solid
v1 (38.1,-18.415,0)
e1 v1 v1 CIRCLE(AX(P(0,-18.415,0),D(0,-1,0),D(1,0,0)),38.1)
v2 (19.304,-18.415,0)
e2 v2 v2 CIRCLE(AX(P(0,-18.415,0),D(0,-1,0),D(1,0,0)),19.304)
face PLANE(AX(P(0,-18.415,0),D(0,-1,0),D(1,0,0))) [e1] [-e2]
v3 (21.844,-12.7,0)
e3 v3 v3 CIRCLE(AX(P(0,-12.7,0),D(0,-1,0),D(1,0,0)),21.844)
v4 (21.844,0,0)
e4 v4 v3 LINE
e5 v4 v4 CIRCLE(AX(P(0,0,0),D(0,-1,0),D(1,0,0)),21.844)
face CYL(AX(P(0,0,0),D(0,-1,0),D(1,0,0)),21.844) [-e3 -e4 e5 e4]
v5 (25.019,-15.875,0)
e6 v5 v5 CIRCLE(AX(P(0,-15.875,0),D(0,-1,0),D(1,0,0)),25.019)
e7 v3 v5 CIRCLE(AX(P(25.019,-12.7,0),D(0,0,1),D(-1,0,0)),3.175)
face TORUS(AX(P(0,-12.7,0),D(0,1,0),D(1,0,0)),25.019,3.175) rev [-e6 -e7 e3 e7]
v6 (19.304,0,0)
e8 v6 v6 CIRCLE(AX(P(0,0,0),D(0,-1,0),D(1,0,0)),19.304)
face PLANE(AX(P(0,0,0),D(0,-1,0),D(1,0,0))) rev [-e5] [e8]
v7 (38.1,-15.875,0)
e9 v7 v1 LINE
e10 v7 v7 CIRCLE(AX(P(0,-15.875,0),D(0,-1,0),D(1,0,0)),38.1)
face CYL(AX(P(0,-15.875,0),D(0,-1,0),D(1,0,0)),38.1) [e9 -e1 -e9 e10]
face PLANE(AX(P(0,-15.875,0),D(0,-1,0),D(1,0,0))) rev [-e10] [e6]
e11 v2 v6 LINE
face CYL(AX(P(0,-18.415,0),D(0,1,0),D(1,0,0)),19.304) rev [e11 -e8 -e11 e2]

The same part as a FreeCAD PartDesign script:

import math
import FreeCAD as App
import Part
import Sketcher
Q = App.Units.Quantity

doc = App.newDocument("Part")
body = doc.addObject("PartDesign::Body", "Body")

sketch1 = body.newObject("Sketcher::SketchObject", "Sketch")
sketch1.AttachmentSupport = (doc.getObject("XY_Plane"), [""])
sketch1.MapMode = "FlatFace"
sketch1.addGeometry([
    Part.LineSegment(App.Vector(21.8, -12.7, 0), App.Vector(21.8, 0, 0)),
    Part.LineSegment(App.Vector(21.8, 0, 0), App.Vector(19.3, 0, 0)),
    Part.LineSegment(App.Vector(19.3, 0, 0), App.Vector(19.3, -18.4, 0)),
    Part.LineSegment(App.Vector(19.3, -18.4, 0), App.Vector(38.1, -18.4, 0)),
    Part.LineSegment(App.Vector(38.1, -18.4, 0), App.Vector(38.1, -15.9, 0)),
    Part.LineSegment(App.Vector(38.1, -15.9, 0), App.Vector(25, -15.9, 0)),
    Part.ArcOfCircle(Part.Circle(App.Vector(25, -12.7, 0), App.Vector(0, 0, 1), 3.2), math.radians(180), math.radians(270)),
], False)
sketch1.addConstraint([
    Sketcher.Constraint("Coincident", 0, 2, 1, 1),
    Sketcher.Constraint("Coincident", 1, 2, 2, 1),
    Sketcher.Constraint("Coincident", 2, 2, 3, 1),
    Sketcher.Constraint("Coincident", 3, 2, 4, 1),
    Sketcher.Constraint("Coincident", 4, 2, 5, 1),
    Sketcher.Constraint("Tangent", 5, 2, 6, 2),
    Sketcher.Constraint("Tangent", 6, 1, 0, 1),
    Sketcher.Constraint("Vertical", 0),
    Sketcher.Constraint("Horizontal", 1),
    Sketcher.Constraint("Vertical", 2),
    Sketcher.Constraint("Horizontal", 3),
    Sketcher.Constraint("Vertical", 4),
    Sketcher.Constraint("Horizontal", 5),
    Sketcher.Constraint("PointOnObject", 0, 2, -1),
    Sketcher.Constraint("Equal", 1, 4),
    Sketcher.Constraint("DistanceX", 1, 2, 1, 1, Q("0.1 in")),
    Sketcher.Constraint("Radius", 6, Q("0.125 in")),
    Sketcher.Constraint("DistanceX", -1, 1, 3, 2, Q("1.5 in")),
    Sketcher.Constraint("DistanceY", 2, 2, 2, 1, Q("0.725 in")),
    Sketcher.Constraint("DistanceX", -1, 1, 1, 2, Q("0.76 in")),
])
revolution = body.newObject("PartDesign::Revolution", "Revolution")
revolution.Profile = sketch1
revolution.ReferenceAxis = (sketch1, ["V_Axis"])
revolution.Angle = 360

doc.recompute()
